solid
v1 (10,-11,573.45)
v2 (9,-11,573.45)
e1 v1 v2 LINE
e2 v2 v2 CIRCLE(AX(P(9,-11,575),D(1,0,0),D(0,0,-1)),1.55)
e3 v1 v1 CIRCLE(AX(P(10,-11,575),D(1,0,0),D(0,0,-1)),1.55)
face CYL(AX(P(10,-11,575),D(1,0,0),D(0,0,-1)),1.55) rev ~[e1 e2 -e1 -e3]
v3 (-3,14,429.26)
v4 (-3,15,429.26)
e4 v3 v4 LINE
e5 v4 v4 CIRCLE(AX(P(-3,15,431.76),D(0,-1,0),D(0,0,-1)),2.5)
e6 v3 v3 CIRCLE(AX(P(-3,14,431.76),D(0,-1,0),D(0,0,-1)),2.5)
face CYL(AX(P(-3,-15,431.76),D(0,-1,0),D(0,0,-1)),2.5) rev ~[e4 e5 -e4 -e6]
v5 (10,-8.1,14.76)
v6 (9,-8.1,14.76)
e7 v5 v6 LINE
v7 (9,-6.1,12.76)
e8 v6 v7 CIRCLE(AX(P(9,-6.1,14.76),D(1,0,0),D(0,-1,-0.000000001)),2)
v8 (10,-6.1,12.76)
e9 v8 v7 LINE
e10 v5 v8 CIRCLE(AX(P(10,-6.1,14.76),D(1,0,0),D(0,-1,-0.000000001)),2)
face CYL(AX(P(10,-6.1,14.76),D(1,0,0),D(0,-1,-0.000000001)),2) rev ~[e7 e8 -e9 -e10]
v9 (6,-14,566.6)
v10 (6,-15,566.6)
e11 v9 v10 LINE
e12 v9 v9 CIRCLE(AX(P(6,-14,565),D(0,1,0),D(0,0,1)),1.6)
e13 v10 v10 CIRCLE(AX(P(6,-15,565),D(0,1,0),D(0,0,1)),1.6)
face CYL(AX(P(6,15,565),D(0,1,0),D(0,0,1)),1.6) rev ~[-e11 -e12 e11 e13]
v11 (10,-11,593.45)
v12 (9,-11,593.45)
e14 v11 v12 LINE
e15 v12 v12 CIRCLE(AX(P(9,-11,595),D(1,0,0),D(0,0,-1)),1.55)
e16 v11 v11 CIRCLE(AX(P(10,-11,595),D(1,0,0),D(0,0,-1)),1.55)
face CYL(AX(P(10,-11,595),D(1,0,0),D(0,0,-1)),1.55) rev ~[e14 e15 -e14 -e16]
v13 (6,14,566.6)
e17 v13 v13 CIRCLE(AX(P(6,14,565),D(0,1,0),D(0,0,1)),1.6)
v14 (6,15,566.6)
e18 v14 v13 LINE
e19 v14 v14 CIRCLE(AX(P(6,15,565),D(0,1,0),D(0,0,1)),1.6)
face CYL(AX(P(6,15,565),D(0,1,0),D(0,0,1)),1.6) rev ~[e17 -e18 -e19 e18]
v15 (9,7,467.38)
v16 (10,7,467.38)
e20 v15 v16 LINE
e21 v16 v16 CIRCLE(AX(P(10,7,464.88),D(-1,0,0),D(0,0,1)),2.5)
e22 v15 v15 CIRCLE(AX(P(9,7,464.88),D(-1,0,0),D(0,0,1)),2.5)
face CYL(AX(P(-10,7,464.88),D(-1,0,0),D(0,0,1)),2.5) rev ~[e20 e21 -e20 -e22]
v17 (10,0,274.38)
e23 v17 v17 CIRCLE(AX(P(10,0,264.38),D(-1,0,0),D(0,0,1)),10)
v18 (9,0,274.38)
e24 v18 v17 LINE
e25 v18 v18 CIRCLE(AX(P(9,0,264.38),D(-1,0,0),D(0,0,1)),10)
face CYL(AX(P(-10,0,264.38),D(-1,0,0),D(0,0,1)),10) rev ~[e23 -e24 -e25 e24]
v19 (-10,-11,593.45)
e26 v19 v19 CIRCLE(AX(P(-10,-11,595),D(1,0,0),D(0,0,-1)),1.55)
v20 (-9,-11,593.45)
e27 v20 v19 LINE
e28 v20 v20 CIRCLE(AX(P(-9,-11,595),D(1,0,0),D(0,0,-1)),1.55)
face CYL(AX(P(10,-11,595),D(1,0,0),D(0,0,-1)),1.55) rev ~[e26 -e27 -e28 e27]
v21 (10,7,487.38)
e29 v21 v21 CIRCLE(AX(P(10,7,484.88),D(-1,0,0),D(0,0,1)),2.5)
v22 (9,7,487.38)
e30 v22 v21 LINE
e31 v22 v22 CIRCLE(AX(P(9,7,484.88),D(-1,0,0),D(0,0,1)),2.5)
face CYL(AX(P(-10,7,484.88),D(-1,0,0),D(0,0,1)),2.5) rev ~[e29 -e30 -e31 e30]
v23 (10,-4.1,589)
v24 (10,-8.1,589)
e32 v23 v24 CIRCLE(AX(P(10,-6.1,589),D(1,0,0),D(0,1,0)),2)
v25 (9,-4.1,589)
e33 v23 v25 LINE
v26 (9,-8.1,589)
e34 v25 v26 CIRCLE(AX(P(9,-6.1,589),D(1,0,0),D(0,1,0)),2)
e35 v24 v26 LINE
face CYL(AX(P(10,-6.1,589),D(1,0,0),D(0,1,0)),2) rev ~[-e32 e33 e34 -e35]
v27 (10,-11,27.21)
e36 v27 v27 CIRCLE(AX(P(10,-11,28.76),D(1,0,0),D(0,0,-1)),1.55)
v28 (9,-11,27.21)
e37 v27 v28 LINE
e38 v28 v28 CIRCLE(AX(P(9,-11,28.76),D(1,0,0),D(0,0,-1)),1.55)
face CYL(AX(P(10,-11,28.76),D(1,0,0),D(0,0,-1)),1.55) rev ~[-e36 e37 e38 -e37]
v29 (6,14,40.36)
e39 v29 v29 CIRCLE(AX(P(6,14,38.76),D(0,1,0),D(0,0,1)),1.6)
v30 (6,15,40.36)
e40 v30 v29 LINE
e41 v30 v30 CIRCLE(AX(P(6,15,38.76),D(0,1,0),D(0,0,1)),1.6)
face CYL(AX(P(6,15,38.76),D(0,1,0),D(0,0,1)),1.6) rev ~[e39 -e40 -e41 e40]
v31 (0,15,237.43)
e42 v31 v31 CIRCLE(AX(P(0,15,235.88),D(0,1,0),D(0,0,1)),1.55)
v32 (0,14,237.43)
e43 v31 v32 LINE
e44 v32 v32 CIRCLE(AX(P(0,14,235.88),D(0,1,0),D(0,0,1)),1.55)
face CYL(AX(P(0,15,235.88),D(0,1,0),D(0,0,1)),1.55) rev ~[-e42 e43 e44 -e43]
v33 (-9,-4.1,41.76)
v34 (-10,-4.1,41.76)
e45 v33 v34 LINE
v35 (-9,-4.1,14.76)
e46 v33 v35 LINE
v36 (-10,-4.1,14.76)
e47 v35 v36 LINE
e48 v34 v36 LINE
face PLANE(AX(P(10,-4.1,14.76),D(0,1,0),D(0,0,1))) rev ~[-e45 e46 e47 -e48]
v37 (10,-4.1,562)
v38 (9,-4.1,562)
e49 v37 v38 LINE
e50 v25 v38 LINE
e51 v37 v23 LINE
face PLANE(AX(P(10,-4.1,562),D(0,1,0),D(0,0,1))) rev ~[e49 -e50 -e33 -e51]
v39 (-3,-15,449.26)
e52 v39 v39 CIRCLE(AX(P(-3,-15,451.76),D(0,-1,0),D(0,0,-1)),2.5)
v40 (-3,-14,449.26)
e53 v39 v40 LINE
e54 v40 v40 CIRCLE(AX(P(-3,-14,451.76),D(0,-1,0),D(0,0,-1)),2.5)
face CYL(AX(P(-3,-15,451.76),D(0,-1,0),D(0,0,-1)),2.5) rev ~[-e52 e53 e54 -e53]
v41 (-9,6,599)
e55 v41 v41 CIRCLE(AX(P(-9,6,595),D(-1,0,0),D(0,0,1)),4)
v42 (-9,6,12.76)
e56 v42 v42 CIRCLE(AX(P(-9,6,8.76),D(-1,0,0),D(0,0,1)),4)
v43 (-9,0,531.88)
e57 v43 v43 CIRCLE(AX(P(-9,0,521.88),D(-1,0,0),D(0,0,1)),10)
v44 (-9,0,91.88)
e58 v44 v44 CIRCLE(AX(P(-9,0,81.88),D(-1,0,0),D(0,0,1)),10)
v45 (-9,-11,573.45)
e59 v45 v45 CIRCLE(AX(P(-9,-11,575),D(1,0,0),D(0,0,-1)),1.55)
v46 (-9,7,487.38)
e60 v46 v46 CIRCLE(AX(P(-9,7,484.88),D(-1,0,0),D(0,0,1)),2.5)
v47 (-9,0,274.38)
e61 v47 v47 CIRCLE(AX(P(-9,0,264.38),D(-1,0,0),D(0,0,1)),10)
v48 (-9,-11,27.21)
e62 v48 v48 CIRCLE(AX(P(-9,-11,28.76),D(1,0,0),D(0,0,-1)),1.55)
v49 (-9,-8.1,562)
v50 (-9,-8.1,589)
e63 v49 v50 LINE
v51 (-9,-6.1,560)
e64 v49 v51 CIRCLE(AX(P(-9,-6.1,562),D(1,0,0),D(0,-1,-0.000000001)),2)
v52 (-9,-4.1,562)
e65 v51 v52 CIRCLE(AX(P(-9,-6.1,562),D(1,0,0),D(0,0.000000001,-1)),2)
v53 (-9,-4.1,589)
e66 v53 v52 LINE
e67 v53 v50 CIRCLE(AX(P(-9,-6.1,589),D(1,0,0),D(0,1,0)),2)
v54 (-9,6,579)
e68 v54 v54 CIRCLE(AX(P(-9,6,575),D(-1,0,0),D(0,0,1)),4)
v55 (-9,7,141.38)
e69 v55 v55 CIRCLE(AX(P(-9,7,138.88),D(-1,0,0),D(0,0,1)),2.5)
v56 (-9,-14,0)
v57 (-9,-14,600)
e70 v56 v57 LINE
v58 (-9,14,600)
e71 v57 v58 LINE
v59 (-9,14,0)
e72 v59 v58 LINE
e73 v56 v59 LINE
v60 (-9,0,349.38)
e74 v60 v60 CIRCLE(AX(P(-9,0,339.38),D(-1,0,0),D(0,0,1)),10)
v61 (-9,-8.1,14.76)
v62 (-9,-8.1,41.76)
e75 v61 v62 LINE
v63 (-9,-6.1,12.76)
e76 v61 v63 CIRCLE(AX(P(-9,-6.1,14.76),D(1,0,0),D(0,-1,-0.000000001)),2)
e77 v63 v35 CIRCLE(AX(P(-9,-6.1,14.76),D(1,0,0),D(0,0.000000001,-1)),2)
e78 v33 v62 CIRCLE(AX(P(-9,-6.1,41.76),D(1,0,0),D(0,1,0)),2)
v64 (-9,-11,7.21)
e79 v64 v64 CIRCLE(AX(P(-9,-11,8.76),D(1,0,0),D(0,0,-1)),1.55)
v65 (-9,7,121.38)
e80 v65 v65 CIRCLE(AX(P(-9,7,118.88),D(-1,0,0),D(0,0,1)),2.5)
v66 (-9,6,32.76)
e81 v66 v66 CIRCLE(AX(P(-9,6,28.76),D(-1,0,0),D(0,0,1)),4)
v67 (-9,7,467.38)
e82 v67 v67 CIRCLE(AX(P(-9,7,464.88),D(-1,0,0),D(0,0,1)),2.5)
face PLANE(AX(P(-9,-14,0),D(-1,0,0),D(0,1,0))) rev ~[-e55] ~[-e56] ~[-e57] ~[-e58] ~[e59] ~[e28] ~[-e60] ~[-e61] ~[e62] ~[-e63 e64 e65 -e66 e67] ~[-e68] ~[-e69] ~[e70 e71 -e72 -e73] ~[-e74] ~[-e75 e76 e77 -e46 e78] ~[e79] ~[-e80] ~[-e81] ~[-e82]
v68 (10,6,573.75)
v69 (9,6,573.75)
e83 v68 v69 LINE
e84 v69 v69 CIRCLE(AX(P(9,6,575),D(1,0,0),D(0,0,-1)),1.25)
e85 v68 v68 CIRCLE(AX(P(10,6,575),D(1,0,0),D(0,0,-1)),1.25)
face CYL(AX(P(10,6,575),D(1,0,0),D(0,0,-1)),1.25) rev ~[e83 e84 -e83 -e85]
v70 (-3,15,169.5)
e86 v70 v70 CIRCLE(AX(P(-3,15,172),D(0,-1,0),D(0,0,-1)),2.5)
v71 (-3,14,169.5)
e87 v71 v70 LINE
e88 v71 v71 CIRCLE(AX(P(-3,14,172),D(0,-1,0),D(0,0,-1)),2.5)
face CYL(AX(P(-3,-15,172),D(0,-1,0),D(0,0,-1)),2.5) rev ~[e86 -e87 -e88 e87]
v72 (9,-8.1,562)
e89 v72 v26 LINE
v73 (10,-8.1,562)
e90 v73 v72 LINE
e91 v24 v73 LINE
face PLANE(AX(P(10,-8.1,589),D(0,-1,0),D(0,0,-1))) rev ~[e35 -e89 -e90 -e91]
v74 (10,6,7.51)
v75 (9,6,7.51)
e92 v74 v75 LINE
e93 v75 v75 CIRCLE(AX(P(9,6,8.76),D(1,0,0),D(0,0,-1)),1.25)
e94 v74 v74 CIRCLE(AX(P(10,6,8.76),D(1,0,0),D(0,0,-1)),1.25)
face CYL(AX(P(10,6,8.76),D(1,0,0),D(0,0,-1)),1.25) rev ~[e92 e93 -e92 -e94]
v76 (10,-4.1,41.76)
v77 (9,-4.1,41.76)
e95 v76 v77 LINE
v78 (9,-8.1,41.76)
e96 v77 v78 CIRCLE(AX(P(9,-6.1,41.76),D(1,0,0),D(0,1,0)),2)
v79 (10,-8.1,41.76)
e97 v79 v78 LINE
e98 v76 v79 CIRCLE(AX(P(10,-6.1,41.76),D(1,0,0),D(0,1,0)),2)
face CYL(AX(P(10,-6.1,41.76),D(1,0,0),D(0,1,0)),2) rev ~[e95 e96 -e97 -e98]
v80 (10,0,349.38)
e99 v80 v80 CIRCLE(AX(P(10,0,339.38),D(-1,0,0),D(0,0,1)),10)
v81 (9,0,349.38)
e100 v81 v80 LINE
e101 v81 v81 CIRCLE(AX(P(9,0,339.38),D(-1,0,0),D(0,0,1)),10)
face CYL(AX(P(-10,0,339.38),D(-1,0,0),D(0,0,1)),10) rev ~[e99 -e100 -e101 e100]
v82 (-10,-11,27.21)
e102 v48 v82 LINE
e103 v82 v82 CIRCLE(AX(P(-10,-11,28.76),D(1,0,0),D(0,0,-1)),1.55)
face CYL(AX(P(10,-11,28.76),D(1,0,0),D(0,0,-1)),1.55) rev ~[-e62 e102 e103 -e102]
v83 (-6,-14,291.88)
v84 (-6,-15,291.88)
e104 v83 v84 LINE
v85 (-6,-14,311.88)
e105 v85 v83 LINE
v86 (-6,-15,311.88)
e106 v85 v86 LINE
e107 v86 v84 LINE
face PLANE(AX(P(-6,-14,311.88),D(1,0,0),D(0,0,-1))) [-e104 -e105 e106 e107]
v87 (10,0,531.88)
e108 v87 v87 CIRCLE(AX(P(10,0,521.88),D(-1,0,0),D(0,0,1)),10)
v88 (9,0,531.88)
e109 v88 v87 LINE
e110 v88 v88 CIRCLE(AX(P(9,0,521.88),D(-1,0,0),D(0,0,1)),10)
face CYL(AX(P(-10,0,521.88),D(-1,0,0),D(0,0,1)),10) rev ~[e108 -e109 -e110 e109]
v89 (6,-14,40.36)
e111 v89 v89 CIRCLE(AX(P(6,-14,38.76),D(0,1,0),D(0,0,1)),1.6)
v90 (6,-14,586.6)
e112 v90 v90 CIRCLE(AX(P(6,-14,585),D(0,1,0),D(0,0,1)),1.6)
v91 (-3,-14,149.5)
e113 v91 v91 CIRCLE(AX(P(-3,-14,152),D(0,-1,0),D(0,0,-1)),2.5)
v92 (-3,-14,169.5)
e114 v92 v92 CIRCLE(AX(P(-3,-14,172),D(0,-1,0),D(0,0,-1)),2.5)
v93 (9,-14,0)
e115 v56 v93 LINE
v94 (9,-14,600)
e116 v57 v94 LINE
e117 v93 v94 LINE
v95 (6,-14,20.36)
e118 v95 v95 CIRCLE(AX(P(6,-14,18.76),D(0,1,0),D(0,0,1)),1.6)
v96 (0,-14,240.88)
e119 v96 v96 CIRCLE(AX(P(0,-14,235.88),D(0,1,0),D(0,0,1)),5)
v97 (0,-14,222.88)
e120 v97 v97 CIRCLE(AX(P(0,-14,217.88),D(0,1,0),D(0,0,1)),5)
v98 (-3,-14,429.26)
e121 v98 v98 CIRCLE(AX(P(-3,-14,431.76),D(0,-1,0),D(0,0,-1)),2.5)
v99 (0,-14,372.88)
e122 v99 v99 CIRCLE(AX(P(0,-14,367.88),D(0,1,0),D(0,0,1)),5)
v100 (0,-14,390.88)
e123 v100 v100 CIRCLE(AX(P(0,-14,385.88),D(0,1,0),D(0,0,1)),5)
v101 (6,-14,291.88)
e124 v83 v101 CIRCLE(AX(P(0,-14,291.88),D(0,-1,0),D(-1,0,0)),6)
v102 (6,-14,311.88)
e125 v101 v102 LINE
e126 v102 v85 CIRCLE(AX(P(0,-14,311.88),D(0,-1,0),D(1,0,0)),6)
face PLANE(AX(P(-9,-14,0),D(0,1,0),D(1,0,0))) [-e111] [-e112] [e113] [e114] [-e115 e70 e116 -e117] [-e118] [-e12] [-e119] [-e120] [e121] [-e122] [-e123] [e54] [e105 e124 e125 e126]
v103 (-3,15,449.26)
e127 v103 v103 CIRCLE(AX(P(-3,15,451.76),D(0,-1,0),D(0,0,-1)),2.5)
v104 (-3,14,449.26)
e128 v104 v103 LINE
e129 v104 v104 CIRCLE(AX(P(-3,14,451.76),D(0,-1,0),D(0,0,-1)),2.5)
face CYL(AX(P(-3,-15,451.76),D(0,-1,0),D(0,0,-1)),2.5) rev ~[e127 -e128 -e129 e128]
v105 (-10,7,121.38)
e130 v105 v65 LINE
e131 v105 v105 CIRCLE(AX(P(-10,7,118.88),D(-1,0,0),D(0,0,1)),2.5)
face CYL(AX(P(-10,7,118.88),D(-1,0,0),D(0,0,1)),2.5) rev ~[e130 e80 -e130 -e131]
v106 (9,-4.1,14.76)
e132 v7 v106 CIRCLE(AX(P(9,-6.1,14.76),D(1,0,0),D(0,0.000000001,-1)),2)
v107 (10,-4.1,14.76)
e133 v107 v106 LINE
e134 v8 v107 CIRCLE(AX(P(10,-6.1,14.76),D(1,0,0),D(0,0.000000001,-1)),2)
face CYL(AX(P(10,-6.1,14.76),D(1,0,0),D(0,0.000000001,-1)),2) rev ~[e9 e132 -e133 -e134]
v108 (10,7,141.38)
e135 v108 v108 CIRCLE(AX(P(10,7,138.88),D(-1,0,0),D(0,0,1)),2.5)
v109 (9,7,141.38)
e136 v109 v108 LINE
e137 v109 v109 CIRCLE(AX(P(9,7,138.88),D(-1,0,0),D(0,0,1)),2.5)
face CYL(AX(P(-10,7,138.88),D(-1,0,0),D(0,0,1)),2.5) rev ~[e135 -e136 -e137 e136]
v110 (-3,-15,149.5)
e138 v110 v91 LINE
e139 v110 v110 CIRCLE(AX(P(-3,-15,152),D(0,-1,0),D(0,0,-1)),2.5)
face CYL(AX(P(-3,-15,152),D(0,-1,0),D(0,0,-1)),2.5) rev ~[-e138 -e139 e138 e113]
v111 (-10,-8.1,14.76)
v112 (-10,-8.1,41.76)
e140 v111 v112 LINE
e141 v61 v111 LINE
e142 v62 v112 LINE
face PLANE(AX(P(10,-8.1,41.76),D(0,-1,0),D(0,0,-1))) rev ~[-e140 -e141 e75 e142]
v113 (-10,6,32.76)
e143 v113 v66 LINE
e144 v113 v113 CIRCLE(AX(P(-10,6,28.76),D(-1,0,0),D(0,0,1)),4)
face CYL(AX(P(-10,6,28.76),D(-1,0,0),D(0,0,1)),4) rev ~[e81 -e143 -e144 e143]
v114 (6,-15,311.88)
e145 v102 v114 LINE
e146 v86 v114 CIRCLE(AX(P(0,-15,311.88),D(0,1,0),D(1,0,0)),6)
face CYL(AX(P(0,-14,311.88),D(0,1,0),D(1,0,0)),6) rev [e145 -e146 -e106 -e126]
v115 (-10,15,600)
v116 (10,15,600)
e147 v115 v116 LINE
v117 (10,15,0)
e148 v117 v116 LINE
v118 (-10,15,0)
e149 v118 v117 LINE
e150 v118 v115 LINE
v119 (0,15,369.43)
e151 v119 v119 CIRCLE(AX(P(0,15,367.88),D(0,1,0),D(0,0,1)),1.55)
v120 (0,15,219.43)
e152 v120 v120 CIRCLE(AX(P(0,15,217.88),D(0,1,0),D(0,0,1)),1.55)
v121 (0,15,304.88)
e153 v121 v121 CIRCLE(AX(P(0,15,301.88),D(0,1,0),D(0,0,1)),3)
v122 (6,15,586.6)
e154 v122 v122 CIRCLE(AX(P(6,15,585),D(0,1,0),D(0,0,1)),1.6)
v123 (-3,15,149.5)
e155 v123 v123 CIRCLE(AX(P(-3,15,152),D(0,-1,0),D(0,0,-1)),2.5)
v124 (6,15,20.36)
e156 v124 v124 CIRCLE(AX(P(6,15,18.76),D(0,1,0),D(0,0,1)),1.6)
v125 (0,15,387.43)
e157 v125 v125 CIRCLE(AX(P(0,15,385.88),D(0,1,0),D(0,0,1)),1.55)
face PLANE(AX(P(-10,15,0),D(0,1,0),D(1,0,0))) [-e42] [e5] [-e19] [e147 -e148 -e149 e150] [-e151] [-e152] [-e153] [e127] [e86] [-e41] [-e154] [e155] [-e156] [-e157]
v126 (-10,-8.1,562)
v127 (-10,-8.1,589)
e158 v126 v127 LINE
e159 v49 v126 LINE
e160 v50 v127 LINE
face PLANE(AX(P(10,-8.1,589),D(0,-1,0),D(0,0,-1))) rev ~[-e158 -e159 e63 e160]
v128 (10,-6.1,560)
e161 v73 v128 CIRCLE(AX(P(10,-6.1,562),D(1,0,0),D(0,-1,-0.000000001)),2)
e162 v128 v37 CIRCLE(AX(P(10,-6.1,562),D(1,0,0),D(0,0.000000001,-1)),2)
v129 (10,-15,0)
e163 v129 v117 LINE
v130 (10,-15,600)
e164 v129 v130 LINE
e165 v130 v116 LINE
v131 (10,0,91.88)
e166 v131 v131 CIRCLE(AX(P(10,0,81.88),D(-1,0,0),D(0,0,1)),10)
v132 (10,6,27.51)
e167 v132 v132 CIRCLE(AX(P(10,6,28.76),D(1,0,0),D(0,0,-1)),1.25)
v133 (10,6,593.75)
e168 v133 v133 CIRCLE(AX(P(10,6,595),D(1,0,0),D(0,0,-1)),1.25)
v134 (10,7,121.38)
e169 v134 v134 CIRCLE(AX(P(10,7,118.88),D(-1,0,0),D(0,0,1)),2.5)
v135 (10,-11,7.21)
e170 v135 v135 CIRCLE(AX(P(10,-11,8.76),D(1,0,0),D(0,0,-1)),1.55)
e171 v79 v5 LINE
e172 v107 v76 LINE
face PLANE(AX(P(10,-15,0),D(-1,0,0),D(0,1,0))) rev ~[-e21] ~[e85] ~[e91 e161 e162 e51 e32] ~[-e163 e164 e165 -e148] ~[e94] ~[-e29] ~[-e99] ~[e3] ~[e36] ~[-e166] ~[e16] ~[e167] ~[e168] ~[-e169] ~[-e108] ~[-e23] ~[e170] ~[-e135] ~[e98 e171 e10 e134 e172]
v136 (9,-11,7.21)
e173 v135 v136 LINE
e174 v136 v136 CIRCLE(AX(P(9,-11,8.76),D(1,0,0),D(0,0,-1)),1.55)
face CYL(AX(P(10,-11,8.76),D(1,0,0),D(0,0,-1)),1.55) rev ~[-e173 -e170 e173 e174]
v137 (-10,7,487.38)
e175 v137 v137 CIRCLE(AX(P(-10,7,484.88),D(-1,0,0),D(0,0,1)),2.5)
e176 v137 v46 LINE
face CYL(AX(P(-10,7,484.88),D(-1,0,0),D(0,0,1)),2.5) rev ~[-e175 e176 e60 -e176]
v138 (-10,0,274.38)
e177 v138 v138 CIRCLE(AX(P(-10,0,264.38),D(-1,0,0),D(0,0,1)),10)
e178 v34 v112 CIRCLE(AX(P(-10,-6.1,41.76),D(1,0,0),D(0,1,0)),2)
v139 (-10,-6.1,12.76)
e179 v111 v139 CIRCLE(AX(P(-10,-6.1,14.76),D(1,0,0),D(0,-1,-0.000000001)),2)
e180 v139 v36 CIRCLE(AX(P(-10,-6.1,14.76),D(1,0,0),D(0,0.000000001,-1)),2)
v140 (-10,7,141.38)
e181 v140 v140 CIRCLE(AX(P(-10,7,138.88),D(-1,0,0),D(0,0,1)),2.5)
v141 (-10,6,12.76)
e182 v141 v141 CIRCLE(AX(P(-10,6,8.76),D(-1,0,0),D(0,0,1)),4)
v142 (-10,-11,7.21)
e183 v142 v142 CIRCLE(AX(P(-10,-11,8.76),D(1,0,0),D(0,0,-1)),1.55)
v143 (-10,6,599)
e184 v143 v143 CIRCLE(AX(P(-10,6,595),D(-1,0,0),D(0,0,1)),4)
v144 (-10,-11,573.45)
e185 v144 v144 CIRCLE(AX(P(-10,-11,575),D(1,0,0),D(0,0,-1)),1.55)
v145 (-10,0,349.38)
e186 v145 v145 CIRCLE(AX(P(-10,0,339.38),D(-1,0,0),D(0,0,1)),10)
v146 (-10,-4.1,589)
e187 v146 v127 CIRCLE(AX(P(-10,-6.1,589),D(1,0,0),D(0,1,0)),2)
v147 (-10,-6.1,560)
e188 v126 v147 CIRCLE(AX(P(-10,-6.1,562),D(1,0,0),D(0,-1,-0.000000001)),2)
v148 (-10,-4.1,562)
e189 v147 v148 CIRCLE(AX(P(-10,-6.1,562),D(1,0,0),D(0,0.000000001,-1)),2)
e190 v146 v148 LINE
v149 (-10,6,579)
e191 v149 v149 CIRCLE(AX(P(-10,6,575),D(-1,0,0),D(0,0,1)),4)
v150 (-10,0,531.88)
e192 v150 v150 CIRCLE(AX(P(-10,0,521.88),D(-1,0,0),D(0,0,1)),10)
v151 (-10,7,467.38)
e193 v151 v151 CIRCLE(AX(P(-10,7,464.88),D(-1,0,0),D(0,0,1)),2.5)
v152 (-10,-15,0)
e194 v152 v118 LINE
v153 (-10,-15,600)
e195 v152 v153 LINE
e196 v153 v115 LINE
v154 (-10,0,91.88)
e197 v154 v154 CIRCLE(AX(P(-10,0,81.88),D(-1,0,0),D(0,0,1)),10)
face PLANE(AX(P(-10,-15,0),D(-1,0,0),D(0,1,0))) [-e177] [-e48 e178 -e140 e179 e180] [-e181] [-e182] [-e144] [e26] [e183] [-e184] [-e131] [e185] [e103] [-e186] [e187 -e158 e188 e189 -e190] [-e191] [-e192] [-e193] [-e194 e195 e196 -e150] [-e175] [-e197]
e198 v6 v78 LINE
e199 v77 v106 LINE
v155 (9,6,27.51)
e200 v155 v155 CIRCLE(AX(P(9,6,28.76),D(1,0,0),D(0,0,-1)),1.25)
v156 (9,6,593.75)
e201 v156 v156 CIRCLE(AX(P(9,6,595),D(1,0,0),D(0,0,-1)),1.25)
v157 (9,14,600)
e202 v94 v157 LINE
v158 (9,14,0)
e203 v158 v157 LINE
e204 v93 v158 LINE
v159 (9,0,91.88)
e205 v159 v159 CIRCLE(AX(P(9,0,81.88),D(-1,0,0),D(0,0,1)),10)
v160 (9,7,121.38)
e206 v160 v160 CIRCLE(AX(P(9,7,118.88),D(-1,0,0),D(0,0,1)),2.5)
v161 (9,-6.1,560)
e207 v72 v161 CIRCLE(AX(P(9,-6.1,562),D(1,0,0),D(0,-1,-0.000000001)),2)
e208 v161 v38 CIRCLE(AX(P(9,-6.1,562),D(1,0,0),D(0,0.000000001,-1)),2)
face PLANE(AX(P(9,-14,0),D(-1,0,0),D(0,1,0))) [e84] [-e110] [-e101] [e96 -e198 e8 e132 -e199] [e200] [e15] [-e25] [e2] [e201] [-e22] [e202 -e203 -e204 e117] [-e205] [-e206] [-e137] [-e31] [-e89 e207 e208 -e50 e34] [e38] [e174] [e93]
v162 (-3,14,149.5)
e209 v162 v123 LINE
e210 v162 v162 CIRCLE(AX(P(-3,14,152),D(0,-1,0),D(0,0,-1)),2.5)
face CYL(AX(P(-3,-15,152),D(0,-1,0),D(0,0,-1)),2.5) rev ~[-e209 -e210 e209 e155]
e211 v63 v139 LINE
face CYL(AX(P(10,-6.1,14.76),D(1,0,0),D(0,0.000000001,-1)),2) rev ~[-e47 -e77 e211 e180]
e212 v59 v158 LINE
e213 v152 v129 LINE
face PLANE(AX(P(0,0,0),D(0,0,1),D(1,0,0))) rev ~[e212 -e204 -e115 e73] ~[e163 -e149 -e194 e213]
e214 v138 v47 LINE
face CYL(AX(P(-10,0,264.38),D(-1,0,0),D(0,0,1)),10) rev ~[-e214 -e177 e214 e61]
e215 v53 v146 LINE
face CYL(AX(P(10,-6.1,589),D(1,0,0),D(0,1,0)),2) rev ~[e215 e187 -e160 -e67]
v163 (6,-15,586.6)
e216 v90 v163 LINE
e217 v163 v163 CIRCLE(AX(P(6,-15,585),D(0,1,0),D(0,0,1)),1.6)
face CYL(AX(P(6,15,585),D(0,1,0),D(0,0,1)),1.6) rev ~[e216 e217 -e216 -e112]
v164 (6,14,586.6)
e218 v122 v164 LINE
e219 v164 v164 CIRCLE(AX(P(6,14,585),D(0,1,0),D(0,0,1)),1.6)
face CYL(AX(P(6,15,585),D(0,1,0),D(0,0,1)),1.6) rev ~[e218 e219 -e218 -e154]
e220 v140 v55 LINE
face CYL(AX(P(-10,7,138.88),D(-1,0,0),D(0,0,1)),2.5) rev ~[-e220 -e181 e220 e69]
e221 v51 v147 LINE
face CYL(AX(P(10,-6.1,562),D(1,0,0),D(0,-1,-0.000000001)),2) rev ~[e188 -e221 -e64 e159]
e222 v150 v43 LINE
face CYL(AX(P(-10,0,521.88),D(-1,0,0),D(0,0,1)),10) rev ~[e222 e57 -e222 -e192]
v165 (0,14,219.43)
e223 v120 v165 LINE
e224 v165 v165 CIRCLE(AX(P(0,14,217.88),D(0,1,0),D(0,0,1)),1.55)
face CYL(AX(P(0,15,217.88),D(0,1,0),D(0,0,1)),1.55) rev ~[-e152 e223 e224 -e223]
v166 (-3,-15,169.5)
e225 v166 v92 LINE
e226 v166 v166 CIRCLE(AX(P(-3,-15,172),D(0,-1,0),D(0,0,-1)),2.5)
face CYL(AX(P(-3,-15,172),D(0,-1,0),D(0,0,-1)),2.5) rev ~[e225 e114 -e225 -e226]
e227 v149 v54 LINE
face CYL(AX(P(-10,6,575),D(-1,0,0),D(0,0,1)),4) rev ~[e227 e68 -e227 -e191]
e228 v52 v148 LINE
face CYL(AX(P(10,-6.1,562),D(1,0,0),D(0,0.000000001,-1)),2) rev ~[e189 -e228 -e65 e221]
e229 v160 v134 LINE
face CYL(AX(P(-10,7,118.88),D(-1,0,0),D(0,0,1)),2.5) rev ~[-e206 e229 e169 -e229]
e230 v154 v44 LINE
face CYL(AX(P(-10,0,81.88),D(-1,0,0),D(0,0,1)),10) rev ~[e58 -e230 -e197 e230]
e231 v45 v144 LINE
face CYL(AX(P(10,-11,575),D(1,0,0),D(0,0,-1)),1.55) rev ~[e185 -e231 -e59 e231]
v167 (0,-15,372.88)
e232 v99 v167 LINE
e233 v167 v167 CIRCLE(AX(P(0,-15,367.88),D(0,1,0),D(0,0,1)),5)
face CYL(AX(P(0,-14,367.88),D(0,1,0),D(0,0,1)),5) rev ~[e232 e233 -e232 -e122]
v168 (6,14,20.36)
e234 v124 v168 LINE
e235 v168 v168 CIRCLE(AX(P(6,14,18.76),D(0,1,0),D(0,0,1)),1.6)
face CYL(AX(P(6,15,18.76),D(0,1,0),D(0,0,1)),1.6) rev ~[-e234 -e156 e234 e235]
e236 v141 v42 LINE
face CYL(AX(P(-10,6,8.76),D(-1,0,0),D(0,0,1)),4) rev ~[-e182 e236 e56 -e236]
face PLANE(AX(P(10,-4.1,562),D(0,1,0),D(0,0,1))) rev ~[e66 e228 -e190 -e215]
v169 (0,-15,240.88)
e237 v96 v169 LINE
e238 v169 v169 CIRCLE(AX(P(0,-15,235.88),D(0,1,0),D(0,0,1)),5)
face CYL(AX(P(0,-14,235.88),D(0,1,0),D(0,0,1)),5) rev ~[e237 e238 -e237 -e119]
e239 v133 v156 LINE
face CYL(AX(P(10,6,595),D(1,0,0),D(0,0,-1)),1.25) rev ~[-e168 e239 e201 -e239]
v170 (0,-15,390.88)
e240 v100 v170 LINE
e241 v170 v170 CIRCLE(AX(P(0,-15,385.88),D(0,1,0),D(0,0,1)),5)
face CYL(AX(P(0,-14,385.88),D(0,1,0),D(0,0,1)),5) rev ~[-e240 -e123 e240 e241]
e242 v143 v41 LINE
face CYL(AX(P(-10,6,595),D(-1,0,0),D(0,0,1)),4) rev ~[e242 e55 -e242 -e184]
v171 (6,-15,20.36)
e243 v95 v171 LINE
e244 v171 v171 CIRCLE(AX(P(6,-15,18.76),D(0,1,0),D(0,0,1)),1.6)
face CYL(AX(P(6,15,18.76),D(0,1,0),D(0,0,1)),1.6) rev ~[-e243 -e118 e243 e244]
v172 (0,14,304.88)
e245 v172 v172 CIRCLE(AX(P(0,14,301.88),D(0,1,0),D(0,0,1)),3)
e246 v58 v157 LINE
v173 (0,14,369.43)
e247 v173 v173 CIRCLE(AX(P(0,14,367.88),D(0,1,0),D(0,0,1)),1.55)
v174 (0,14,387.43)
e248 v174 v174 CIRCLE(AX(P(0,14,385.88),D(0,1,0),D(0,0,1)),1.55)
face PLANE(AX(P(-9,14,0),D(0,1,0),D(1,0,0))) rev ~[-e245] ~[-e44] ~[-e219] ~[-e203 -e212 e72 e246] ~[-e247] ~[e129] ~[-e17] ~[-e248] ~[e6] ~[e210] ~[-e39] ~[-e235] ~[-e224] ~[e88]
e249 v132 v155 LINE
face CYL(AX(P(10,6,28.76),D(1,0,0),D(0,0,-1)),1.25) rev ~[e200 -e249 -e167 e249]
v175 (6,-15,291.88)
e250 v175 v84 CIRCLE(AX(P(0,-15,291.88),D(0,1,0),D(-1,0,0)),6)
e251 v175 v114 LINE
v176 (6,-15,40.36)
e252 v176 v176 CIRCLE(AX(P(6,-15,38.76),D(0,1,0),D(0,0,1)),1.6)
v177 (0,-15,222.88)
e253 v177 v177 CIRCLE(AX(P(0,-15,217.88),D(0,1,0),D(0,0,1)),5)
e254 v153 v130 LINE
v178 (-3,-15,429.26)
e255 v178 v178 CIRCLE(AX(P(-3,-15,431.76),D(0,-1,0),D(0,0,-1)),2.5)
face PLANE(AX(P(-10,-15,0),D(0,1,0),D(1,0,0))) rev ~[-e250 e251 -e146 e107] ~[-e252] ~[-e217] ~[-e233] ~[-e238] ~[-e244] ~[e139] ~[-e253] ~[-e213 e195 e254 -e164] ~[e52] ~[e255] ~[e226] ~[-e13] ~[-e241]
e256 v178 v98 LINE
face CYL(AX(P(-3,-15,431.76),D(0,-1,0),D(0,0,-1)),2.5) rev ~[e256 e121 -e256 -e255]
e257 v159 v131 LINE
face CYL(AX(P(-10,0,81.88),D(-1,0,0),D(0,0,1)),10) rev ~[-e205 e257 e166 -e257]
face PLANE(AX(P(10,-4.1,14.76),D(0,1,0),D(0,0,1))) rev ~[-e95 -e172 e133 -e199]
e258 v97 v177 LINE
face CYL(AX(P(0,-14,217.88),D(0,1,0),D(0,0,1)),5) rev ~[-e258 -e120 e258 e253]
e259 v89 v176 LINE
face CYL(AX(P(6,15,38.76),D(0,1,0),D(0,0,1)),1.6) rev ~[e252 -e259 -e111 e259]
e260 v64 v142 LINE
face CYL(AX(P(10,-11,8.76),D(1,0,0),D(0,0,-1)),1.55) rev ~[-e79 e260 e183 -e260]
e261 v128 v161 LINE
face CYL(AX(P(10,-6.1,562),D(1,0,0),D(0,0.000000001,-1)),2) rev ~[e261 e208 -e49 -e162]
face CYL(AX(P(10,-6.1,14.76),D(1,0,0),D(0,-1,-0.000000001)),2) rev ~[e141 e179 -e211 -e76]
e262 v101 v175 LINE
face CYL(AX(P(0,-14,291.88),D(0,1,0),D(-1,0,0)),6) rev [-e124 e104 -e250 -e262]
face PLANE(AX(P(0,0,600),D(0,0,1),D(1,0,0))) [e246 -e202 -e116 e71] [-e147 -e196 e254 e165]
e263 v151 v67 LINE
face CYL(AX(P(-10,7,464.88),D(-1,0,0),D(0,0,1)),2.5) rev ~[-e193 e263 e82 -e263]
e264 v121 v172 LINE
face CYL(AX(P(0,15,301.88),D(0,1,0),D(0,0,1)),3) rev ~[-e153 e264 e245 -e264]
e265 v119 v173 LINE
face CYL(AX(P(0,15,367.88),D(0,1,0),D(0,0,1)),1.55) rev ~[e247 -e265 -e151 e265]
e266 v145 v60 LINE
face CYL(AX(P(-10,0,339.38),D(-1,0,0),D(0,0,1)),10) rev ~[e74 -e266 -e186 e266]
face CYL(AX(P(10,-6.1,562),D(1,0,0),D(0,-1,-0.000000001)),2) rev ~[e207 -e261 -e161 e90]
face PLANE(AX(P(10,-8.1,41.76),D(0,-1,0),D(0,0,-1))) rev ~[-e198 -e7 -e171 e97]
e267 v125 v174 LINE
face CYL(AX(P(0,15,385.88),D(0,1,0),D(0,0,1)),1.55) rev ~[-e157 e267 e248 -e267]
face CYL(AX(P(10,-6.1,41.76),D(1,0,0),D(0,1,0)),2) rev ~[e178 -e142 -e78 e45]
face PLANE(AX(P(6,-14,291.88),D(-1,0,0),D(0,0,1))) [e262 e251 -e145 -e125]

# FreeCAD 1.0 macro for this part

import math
import FreeCAD as App
import Part
import Sketcher
from FreeCAD import Vector
Q = App.Units.Quantity

doc = App.newDocument("Part")
body = doc.addObject("PartDesign::Body", "Body")

# Sketch on XY plane
sketch1 = body.newObject("Sketcher::SketchObject", "Sketch")
sketch1.AttachmentSupport = (doc.getObject("XY_Plane"), [""])
sketch1.MapMode = "FlatFace"
sketch1.addGeometry(Part.LineSegment(Vector(-10, 15, 0), Vector(-10, -15, 0)), False)
sketch1.addGeometry(Part.LineSegment(Vector(-10, -15, 0), Vector(10, -15, 0)), False)
sketch1.addGeometry(Part.LineSegment(Vector(10, -15, 0), Vector(10, 15, 0)), False)
sketch1.addGeometry(Part.LineSegment(Vector(10, 15, 0), Vector(-10, 15, 0)), False)
sketch1.addGeometry(Part.LineSegment(Vector(9, -14, 0), Vector(-9, -14, 0)), False)
sketch1.addGeometry(Part.LineSegment(Vector(-9, -14, 0), Vector(-9, 14, 0)), False)
sketch1.addGeometry(Part.LineSegment(Vector(-9, 14, 0), Vector(9, 14, 0)), False)
sketch1.addGeometry(Part.LineSegment(Vector(9, 14, 0), Vector(9, -14, 0)), False)
sketch1.addConstraint(Sketcher.Constraint("Coincident", 0, 2, 1, 1))
sketch1.addConstraint(Sketcher.Constraint("Coincident", 1, 2, 2, 1))
sketch1.addConstraint(Sketcher.Constraint("Coincident", 2, 2, 3, 1))
sketch1.addConstraint(Sketcher.Constraint("Coincident", 3, 2, 0, 1))
sketch1.addConstraint(Sketcher.Constraint("Coincident", 4, 2, 5, 1))
sketch1.addConstraint(Sketcher.Constraint("Coincident", 5, 2, 6, 1))
sketch1.addConstraint(Sketcher.Constraint("Coincident", 6, 2, 7, 1))
sketch1.addConstraint(Sketcher.Constraint("Coincident", 7, 2, 4, 1))
sketch1.addConstraint(Sketcher.Constraint("Vertical", 0))
sketch1.addConstraint(Sketcher.Constraint("Horizontal", 1))
sketch1.addConstraint(Sketcher.Constraint("Vertical", 2))
sketch1.addConstraint(Sketcher.Constraint("Horizontal", 3))
sketch1.addConstraint(Sketcher.Constraint("Horizontal", 4))
sketch1.addConstraint(Sketcher.Constraint("Vertical", 5))
sketch1.addConstraint(Sketcher.Constraint("Horizontal", 6))
sketch1.addConstraint(Sketcher.Constraint("Vertical", 7))
sketch1.addConstraint(Sketcher.Constraint("Symmetric", 0, 2, 2, 2, -1, 1))
sketch1.addConstraint(Sketcher.Constraint("Symmetric", 4, 2, 6, 2, -1, 1))
sketch1.addConstraint(Sketcher.Constraint("DistanceX", 1, 1, 1, 2, Q("20 mm")))
sketch1.addConstraint(Sketcher.Constraint("DistanceX", 4, 2, 4, 1, Q("18 mm")))
sketch1.addConstraint(Sketcher.Constraint("DistanceY", 0, 2, 0, 1, Q("30 mm")))
sketch1.addConstraint(Sketcher.Constraint("DistanceY", 5, 1, 5, 2, Q("28 mm")))
pad1 = body.newObject("PartDesign::Pad", "Pad")
pad1.Profile = sketch1
pad1.Length = 600

# Sketch on XZ plane
sketch2 = body.newObject("Sketcher::SketchObject", "Sketch001")
sketch2.AttachmentSupport = (doc.getObject("XZ_Plane"), [""])
sketch2.MapMode = "FlatFace"
sketch2.AttachmentOffset = App.Placement(Vector(0, 0, -15), App.Rotation())
sketch2.addGeometry(Part.Circle(Vector(0, 217.9, 0), Vector(0, 0, 1), 1.6), False)
sketch2.addGeometry(Part.Circle(Vector(0, 235.9, 0), Vector(0, 0, 1), 1.6), False)
sketch2.addGeometry(Part.Circle(Vector(0, 367.9, 0), Vector(0, 0, 1), 1.6), False)
sketch2.addGeometry(Part.Circle(Vector(0, 385.9, 0), Vector(0, 0, 1), 1.6), False)
sketch2.addGeometry(Part.Circle(Vector(0, 301.9, 0), Vector(0, 0, 1), 3), False)
sketch2.addConstraint(Sketcher.Constraint("Equal", 0, 1))
sketch2.addConstraint(Sketcher.Constraint("Equal", 1, 2))
sketch2.addConstraint(Sketcher.Constraint("Equal", 2, 3))
sketch2.addConstraint(Sketcher.Constraint("PointOnObject", 0, 3, -2))
sketch2.addConstraint(Sketcher.Constraint("PointOnObject", 1, 3, -2))
sketch2.addConstraint(Sketcher.Constraint("PointOnObject", 2, 3, -2))
sketch2.addConstraint(Sketcher.Constraint("PointOnObject", 3, 3, -2))
sketch2.addConstraint(Sketcher.Constraint("PointOnObject", 4, 3, -2))
sketch2.addConstraint(Sketcher.Constraint("Diameter", 4, Q("6 mm")))
sketch2.addConstraint(Sketcher.Constraint("Diameter", 0, Q("3.1 mm")))
sketch2.addConstraint(Sketcher.Constraint("DistanceY", 0, 3, 1, 3, Q("18 mm")))
sketch2.addConstraint(Sketcher.Constraint("DistanceY", 1, 3, 2, 3, Q("132 mm")))
sketch2.addConstraint(Sketcher.Constraint("DistanceY", 2, 3, 3, 3, Q("18 mm")))
sketch2.addConstraint(Sketcher.Constraint("DistanceY", 1, 3, 4, 3, Q("66 mm")))
sketch2.addConstraint(Sketcher.Constraint("DistanceY", -1, 1, 0, 3, Q("217.88 mm")))
pocket1 = body.newObject("PartDesign::Pocket", "Pocket")
pocket1.Profile = sketch2
pocket1.Length = 5
pocket1.Reversed = True

# Sketch on XZ plane
sketch3 = body.newObject("Sketcher::SketchObject", "Sketch002")
sketch3.AttachmentSupport = (doc.getObject("XZ_Plane"), [""])
sketch3.MapMode = "FlatFace"
sketch3.AttachmentOffset = App.Placement(Vector(0, 0, 14), App.Rotation())
sketch3.addGeometry(Part.Circle(Vector(0, 386, 0), Vector(0, 0, 1), 5), False)
sketch3.addGeometry(Part.Circle(Vector(0, 368, 0), Vector(0, 0, 1), 5), False)
sketch3.addGeometry(Part.Circle(Vector(0, 236, 0), Vector(0, 0, 1), 5), False)
sketch3.addGeometry(Part.Circle(Vector(0, 218, 0), Vector(0, 0, 1), 5), False)
sketch3.addConstraint(Sketcher.Constraint("Equal", 0, 1))
sketch3.addConstraint(Sketcher.Constraint("Equal", 1, 2))
sketch3.addConstraint(Sketcher.Constraint("Equal", 2, 3))
sketch3.addConstraint(Sketcher.Constraint("PointOnObject", 0, 3, -2))
sketch3.addConstraint(Sketcher.Constraint("PointOnObject", 1, 3, -2))
sketch3.addConstraint(Sketcher.Constraint("PointOnObject", 2, 3, -2))
sketch3.addConstraint(Sketcher.Constraint("PointOnObject", 3, 3, -2))
sketch3.addConstraint(Sketcher.Constraint("Diameter", 0, Q("10 mm")))
sketch3.addConstraint(Sketcher.Constraint("DistanceY", 1, 3, 0, 3, Q("18 mm")))
sketch3.addConstraint(Sketcher.Constraint("DistanceY", 2, 3, 1, 3, Q("132 mm")))
sketch3.addConstraint(Sketcher.Constraint("DistanceY", 3, 3, 2, 3, Q("18 mm")))
sketch3.addConstraint(Sketcher.Constraint("DistanceY", -1, 1, 0, 3, Q("385.88 mm")))
pocket2 = body.newObject("PartDesign::Pocket", "Pocket001")
pocket2.Profile = sketch3
pocket2.Length = 10
pocket2.Reversed = True

# Sketch on YZ plane
sketch4 = body.newObject("Sketcher::SketchObject", "Sketch003")
sketch4.AttachmentSupport = (doc.getObject("YZ_Plane"), [""])
sketch4.MapMode = "FlatFace"
sketch4.AttachmentOffset = App.Placement(Vector(0, 0, 10), App.Rotation())
sketch4.addGeometry(Part.LineSegment(Vector(-8.1, 589, 0), Vector(-8.1, 562, 0)), False)
sketch4.addGeometry(Part.ArcOfCircle(Part.Circle(Vector(-6.1, 562, 0), Vector(0, 0, 1), 2), math.radians(-180), math.radians(-90)), False)
sketch4.addGeometry(Part.ArcOfCircle(Part.Circle(Vector(-6.1, 562, 0), Vector(0, 0, 1), 2), math.radians(-90), math.radians(0)), False)
sketch4.addGeometry(Part.LineSegment(Vector(-4.1, 562, 0), Vector(-4.1, 589, 0)), False)
sketch4.addGeometry(Part.ArcOfCircle(Part.Circle(Vector(-6.1, 589, 0), Vector(0, 0, 1), 2), math.radians(0), math.radians(180)), False)
sketch4.addGeometry(Part.Circle(Vector(6, 595, 0), Vector(0, 0, 1), 1.2), False)
sketch4.addGeometry(Part.LineSegment(Vector(-8.1, 41.8, 0), Vector(-8.1, 14.8, 0)), False)
sketch4.addGeometry(Part.ArcOfCircle(Part.Circle(Vector(-6.1, 14.8, 0), Vector(0, 0, 1), 2), math.radians(-180), math.radians(-90)), False)
sketch4.addGeometry(Part.ArcOfCircle(Part.Circle(Vector(-6.1, 14.8, 0), Vector(0, 0, 1), 2), math.radians(-90), math.radians(0)), False)
sketch4.addGeometry(Part.LineSegment(Vector(-4.1, 14.8, 0), Vector(-4.1, 41.8, 0)), False)
sketch4.addGeometry(Part.ArcOfCircle(Part.Circle(Vector(-6.1, 41.8, 0), Vector(0, 0, 1), 2), math.radians(0), math.radians(180)), False)
sketch4.addGeometry(Part.Circle(Vector(6, 575, 0), Vector(0, 0, 1), 1.2), False)
sketch4.addGeometry(Part.Circle(Vector(6, 8.8, 0), Vector(0, 0, 1), 1.2), False)
sketch4.addGeometry(Part.Circle(Vector(6, 28.8, 0), Vector(0, 0, 1), 1.2), False)
sketch4.addConstraint(Sketcher.Constraint("Tangent", 0, 2, 1, 1))
sketch4.addConstraint(Sketcher.Constraint("Tangent", 1, 2, 2, 1))
sketch4.addConstraint(Sketcher.Constraint("Tangent", 2, 2, 3, 1))
sketch4.addConstraint(Sketcher.Constraint("Tangent", 3, 2, 4, 1))
sketch4.addConstraint(Sketcher.Constraint("Tangent", 4, 2, 0, 1))
sketch4.addConstraint(Sketcher.Constraint("Tangent", 6, 2, 7, 1))
sketch4.addConstraint(Sketcher.Constraint("Tangent", 7, 2, 8, 1))
sketch4.addConstraint(Sketcher.Constraint("Tangent", 8, 2, 9, 1))
sketch4.addConstraint(Sketcher.Constraint("Tangent", 9, 2, 10, 1))
sketch4.addConstraint(Sketcher.Constraint("Tangent", 10, 2, 6, 1))
sketch4.addConstraint(Sketcher.Constraint("Vertical", 0))
sketch4.addConstraint(Sketcher.Constraint("Vertical", 3))
sketch4.addConstraint(Sketcher.Constraint("Vertical", 6))
sketch4.addConstraint(Sketcher.Constraint("Vertical", 9))
sketch4.addConstraint(Sketcher.Constraint("Equal", 1, 2))
sketch4.addConstraint(Sketcher.Constraint("Equal", 4, 7))
sketch4.addConstraint(Sketcher.Constraint("Equal", 7, 8))
sketch4.addConstraint(Sketcher.Constraint("Equal", 5, 11))
sketch4.addConstraint(Sketcher.Constraint("Equal", 11, 12))
sketch4.addConstraint(Sketcher.Constraint("Equal", 12, 13))
sketch4.addConstraint(Sketcher.Constraint("Vertical", 4, 3, 7, 3))
sketch4.addConstraint(Sketcher.Constraint("Vertical", 5, 3, 11, 3))
sketch4.addConstraint(Sketcher.Constraint("Vertical", 11, 3, 12, 3))
sketch4.addConstraint(Sketcher.Constraint("Vertical", 12, 3, 13, 3))
sketch4.addConstraint(Sketcher.Constraint("Vertical", 10, 3, 1, 2))
sketch4.addConstraint(Sketcher.Constraint("Vertical", 1, 2, 7, 2))
sketch4.addConstraint(Sketcher.Constraint("Equal", 3, 6))
sketch4.addConstraint(Sketcher.Constraint("Radius", 1, Q("2 mm")))
sketch4.addConstraint(Sketcher.Constraint("Diameter", 5, Q("2.5 mm")))
sketch4.addConstraint(Sketcher.Constraint("DistanceY", 0, 2, 0, 1, Q("27 mm")))
sketch4.addConstraint(Sketcher.Constraint("DistanceY", -1, 1, 1, 3, Q("562 mm")))
sketch4.addConstraint(Sketcher.Constraint("DistanceX", -1, 1, 5, 3, Q("6 mm")))
sketch4.addConstraint(Sketcher.Constraint("DistanceY", -1, 1, 5, 3, Q("595 mm")))
sketch4.addConstraint(Sketcher.Constraint("DistanceY", -1, 1, 11, 3, Q("575 mm")))
sketch4.addConstraint(Sketcher.Constraint("DistanceY", 12, 3, 7, 3, Q("6 mm")))
sketch4.addConstraint(Sketcher.Constraint("DistanceY", 13, 3, 10, 3, Q("13 mm")))
sketch4.addConstraint(Sketcher.Constraint("DistanceX", 1, 3, -1, 1, Q("6.1 mm")))
sketch4.addConstraint(Sketcher.Constraint("DistanceY", -1, 1, 7, 3, Q("14.76 mm")))
pocket3 = body.newObject("PartDesign::Pocket", "Pocket002")
pocket3.Profile = sketch4
pocket3.Length = 25

# Sketch on YZ plane
sketch5 = body.newObject("Sketcher::SketchObject", "Sketch004")
sketch5.AttachmentSupport = (doc.getObject("YZ_Plane"), [""])
sketch5.MapMode = "FlatFace"
sketch5.AttachmentOffset = App.Placement(Vector(0, 0, -10), App.Rotation())
sketch5.addGeometry(Part.Circle(Vector(6, 8.8, 0), Vector(0, 0, 1), 4), False)
sketch5.addGeometry(Part.Circle(Vector(6, 28.8, 0), Vector(0, 0, 1), 4), False)
sketch5.addGeometry(Part.Circle(Vector(6, 575, 0), Vector(0, 0, 1), 4), False)
sketch5.addGeometry(Part.Circle(Vector(6, 595, 0), Vector(0, 0, 1), 4), False)
sketch5.addConstraint(Sketcher.Constraint("Equal", 0, 1))
sketch5.addConstraint(Sketcher.Constraint("Equal", 1, 2))
sketch5.addConstraint(Sketcher.Constraint("Equal", 2, 3))
sketch5.addConstraint(Sketcher.Constraint("Vertical", 0, 3, 1, 3))
sketch5.addConstraint(Sketcher.Constraint("Vertical", 1, 3, 2, 3))
sketch5.addConstraint(Sketcher.Constraint("Vertical", 2, 3, 3, 3))
sketch5.addConstraint(Sketcher.Constraint("Diameter", 0, Q("8 mm")))
sketch5.addConstraint(Sketcher.Constraint("DistanceX", -1, 1, 0, 3, Q("6 mm")))
sketch5.addConstraint(Sketcher.Constraint("DistanceY", -1, 1, 2, 3, Q("575 mm")))
sketch5.addConstraint(Sketcher.Constraint("DistanceY", -1, 1, 3, 3, Q("595 mm")))
sketch5.addConstraint(Sketcher.Constraint("DistanceY", 0, 3, 1, 3, Q("20 mm")))
sketch5.addConstraint(Sketcher.Constraint("DistanceY", -1, 1, 0, 3, Q("8.76 mm")))
pocket4 = body.newObject("PartDesign::Pocket", "Pocket003")
pocket4.Profile = sketch5
pocket4.Length = 3
pocket4.Reversed = True

# Sketch on XZ plane
sketch6 = body.newObject("Sketcher::SketchObject", "Sketch005")
sketch6.AttachmentSupport = (doc.getObject("XZ_Plane"), [""])
sketch6.MapMode = "FlatFace"
sketch6.AttachmentOffset = App.Placement(Vector(0, 0, -15), App.Rotation())
sketch6.addGeometry(Part.Circle(Vector(6, 585, 0), Vector(0, 0, 1), 1.6), False)
sketch6.addGeometry(Part.Circle(Vector(6, 565, 0), Vector(0, 0, 1), 1.6), False)
sketch6.addGeometry(Part.Circle(Vector(6, 38.8, 0), Vector(0, 0, 1), 1.6), False)
sketch6.addGeometry(Part.Circle(Vector(6, 18.8, 0), Vector(0, 0, 1), 1.6), False)
sketch6.addConstraint(Sketcher.Constraint("Equal", 0, 1))
sketch6.addConstraint(Sketcher.Constraint("Equal", 1, 2))
sketch6.addConstraint(Sketcher.Constraint("Equal", 2, 3))
sketch6.addConstraint(Sketcher.Constraint("Vertical", 0, 3, 1, 3))
sketch6.addConstraint(Sketcher.Constraint("Vertical", 1, 3, 2, 3))
sketch6.addConstraint(Sketcher.Constraint("Vertical", 2, 3, 3, 3))
sketch6.addConstraint(Sketcher.Constraint("Diameter", 0, Q("3.2 mm")))
sketch6.addConstraint(Sketcher.Constraint("DistanceX", -1, 1, 0, 3, Q("6 mm")))
sketch6.addConstraint(Sketcher.Constraint("DistanceY", -1, 1, 0, 3, Q("585 mm")))
sketch6.addConstraint(Sketcher.Constraint("DistanceY", -1, 1, 1, 3, Q("565 mm")))
sketch6.addConstraint(Sketcher.Constraint("DistanceY", 3, 3, 2, 3, Q("20 mm")))
sketch6.addConstraint(Sketcher.Constraint("DistanceY", -1, 1, 2, 3, Q("38.76 mm")))
pocket5 = body.newObject("PartDesign::Pocket", "Pocket004")
pocket5.Profile = sketch6
pocket5.Length = 40
pocket5.Reversed = True

# Sketch on XZ plane
sketch7 = body.newObject("Sketcher::SketchObject", "Sketch006")
sketch7.AttachmentSupport = (doc.getObject("XZ_Plane"), [""])
sketch7.MapMode = "FlatFace"
sketch7.AttachmentOffset = App.Placement(Vector(0, 0, 15), App.Rotation())
sketch7.addGeometry(Part.Circle(Vector(-3, 152, 0), Vector(0, 0, 1), 2.5), False)
sketch7.addGeometry(Part.Circle(Vector(-3, 172, 0), Vector(0, 0, 1), 2.5), False)
sketch7.addConstraint(Sketcher.Constraint("Equal", 0, 1))
sketch7.addConstraint(Sketcher.Constraint("Vertical", 0, 3, 1, 3))
sketch7.addConstraint(Sketcher.Constraint("Diameter", 0, Q("5 mm")))
sketch7.addConstraint(Sketcher.Constraint("DistanceX", 0, 3, -1, 1, Q("3 mm")))
sketch7.addConstraint(Sketcher.Constraint("DistanceY", -1, 1, 0, 3, Q("152 mm")))
sketch7.addConstraint(Sketcher.Constraint("DistanceY", -1, 1, 1, 3, Q("172 mm")))
pocket6 = body.newObject("PartDesign::Pocket", "Pocket005")
pocket6.Profile = sketch7
pocket6.Length = 40

# Sketch on XZ plane
sketch8 = body.newObject("Sketcher::SketchObject", "Sketch007")
sketch8.AttachmentSupport = (doc.getObject("XZ_Plane"), [""])
sketch8.MapMode = "FlatFace"
sketch8.AttachmentOffset = App.Placement(Vector(0, 0, 15), App.Rotation())
sketch8.addGeometry(Part.Circle(Vector(-3, 431.8, 0), Vector(0, 0, 1), 2.5), False)
sketch8.addGeometry(Part.Circle(Vector(-3, 451.8, 0), Vector(0, 0, 1), 2.5), False)
sketch8.addConstraint(Sketcher.Constraint("Equal", 0, 1))
sketch8.addConstraint(Sketcher.Constraint("Vertical", 0, 3, 1, 3))
sketch8.addConstraint(Sketcher.Constraint("Diameter", 0, Q("5 mm")))
sketch8.addConstraint(Sketcher.Constraint("DistanceX", 0, 3, -1, 1, Q("3 mm")))
sketch8.addConstraint(Sketcher.Constraint("DistanceY", 0, 3, 1, 3, Q("20 mm")))
sketch8.addConstraint(Sketcher.Constraint("DistanceY", -1, 1, 0, 3, Q("431.76 mm")))
pocket7 = body.newObject("PartDesign::Pocket", "Pocket006")
pocket7.Profile = sketch8
pocket7.Length = 40

# Sketch on XZ plane
sketch9 = body.newObject("Sketcher::SketchObject", "Sketch008")
sketch9.AttachmentSupport = (doc.getObject("XZ_Plane"), [""])
sketch9.MapMode = "FlatFace"
sketch9.AttachmentOffset = App.Placement(Vector(0, 0, 14), App.Rotation())
sketch9.addGeometry(Part.LineSegment(Vector(6, 312, 0), Vector(6, 292, 0)), False)
sketch9.addGeometry(Part.ArcOfCircle(Part.Circle(Vector(0, 292, 0), Vector(0, 0, 1), 6), math.radians(180), math.radians(360)), False)
sketch9.addGeometry(Part.LineSegment(Vector(-6, 292, 0), Vector(-6, 312, 0)), False)
sketch9.addGeometry(Part.ArcOfCircle(Part.Circle(Vector(0, 312, 0), Vector(0, 0, 1), 6), math.radians(0), math.radians(180)), False)
sketch9.addConstraint(Sketcher.Constraint("Tangent", 0, 2, 1, 2))
sketch9.addConstraint(Sketcher.Constraint("Tangent", 1, 1, 2, 1))
sketch9.addConstraint(Sketcher.Constraint("Tangent", 2, 2, 3, 2))
sketch9.addConstraint(Sketcher.Constraint("Tangent", 3, 1, 0, 1))
sketch9.addConstraint(Sketcher.Constraint("Vertical", 0))
sketch9.addConstraint(Sketcher.Constraint("Vertical", 2))
sketch9.addConstraint(Sketcher.Constraint("PointOnObject", 1, 3, -2))
sketch9.addConstraint(Sketcher.Constraint("Radius", 1, Q("6 mm")))
sketch9.addConstraint(Sketcher.Constraint("DistanceY", 0, 2, 0, 1, Q("20 mm")))
sketch9.addConstraint(Sketcher.Constraint("DistanceY", -1, 1, 1, 3, Q("291.88 mm")))
pocket8 = body.newObject("PartDesign::Pocket", "Pocket007")
pocket8.Profile = sketch9
pocket8.Length = 10
pocket8.Reversed = True

# Sketch on YZ plane
sketch10 = body.newObject("Sketcher::SketchObject", "Sketch009")
sketch10.AttachmentSupport = (doc.getObject("YZ_Plane"), [""])
sketch10.MapMode = "FlatFace"
sketch10.AttachmentOffset = App.Placement(Vector(0, 0, -10), App.Rotation())
sketch10.addGeometry(Part.Circle(Vector(7, 464.9, 0), Vector(0, 0, 1), 2.5), False)
sketch10.addGeometry(Part.Circle(Vector(7, 484.9, 0), Vector(0, 0, 1), 2.5), False)
sketch10.addConstraint(Sketcher.Constraint("Equal", 0, 1))
sketch10.addConstraint(Sketcher.Constraint("Vertical", 0, 3, 1, 3))
sketch10.addConstraint(Sketcher.Constraint("Diameter", 0, Q("5 mm")))
sketch10.addConstraint(Sketcher.Constraint("DistanceX", -1, 1, 0, 3, Q("7 mm")))
sketch10.addConstraint(Sketcher.Constraint("DistanceY", 0, 3, 1, 3, Q("20 mm")))
sketch10.addConstraint(Sketcher.Constraint("DistanceY", -1, 1, 0, 3, Q("464.88 mm")))
pocket9 = body.newObject("PartDesign::Pocket", "Pocket008")
pocket9.Profile = sketch10
pocket9.Length = 50
pocket9.Reversed = True

# Sketch on YZ plane
sketch11 = body.newObject("Sketcher::SketchObject", "Sketch010")
sketch11.AttachmentSupport = (doc.getObject("YZ_Plane"), [""])
sketch11.MapMode = "FlatFace"
sketch11.AttachmentOffset = App.Placement(Vector(0, 0, -10), App.Rotation())
sketch11.addGeometry(Part.Circle(Vector(7, 118.9, 0), Vector(0, 0, 1), 2.5), False)
sketch11.addGeometry(Part.Circle(Vector(7, 138.9, 0), Vector(0, 0, 1), 2.5), False)
sketch11.addConstraint(Sketcher.Constraint("Equal", 0, 1))
sketch11.addConstraint(Sketcher.Constraint("Vertical", 0, 3, 1, 3))
sketch11.addConstraint(Sketcher.Constraint("Diameter", 0, Q("5 mm")))
sketch11.addConstraint(Sketcher.Constraint("DistanceX", -1, 1, 0, 3, Q("7 mm")))
sketch11.addConstraint(Sketcher.Constraint("DistanceY", 0, 3, 1, 3, Q("20 mm")))
sketch11.addConstraint(Sketcher.Constraint("DistanceY", -1, 1, 0, 3, Q("118.88 mm")))
pocket10 = body.newObject("PartDesign::Pocket", "Pocket009")
pocket10.Profile = sketch11
pocket10.Length = 50
pocket10.Reversed = True

# Sketch on YZ plane
sketch12 = body.newObject("Sketcher::SketchObject", "Sketch011")
sketch12.AttachmentSupport = (doc.getObject("YZ_Plane"), [""])
sketch12.MapMode = "FlatFace"
sketch12.AttachmentOffset = App.Placement(Vector(0, 0, 10), App.Rotation())
sketch12.addGeometry(Part.Circle(Vector(-11, 28.8, 0), Vector(0, 0, 1), 1.6), False)
sketch12.addGeometry(Part.Circle(Vector(-11, 8.8, 0), Vector(0, 0, 1), 1.6), False)
sketch12.addConstraint(Sketcher.Constraint("Equal", 0, 1))
sketch12.addConstraint(Sketcher.Constraint("Vertical", 0, 3, 1, 3))
sketch12.addConstraint(Sketcher.Constraint("Diameter", 0, Q("3.1 mm")))
sketch12.addConstraint(Sketcher.Constraint("DistanceX", 0, 3, -1, 1, Q("11 mm")))
sketch12.addConstraint(Sketcher.Constraint("DistanceY", 1, 3, 0, 3, Q("20 mm")))
sketch12.addConstraint(Sketcher.Constraint("DistanceY", -1, 1, 0, 3, Q("28.76 mm")))
pocket11 = body.newObject("PartDesign::Pocket", "Pocket010")
pocket11.Profile = sketch12
pocket11.Length = 40

# Sketch on YZ plane
sketch13 = body.newObject("Sketcher::SketchObject", "Sketch012")
sketch13.AttachmentSupport = (doc.getObject("YZ_Plane"), [""])
sketch13.MapMode = "FlatFace"
sketch13.AttachmentOffset = App.Placement(Vector(0, 0, 10), App.Rotation())
sketch13.addGeometry(Part.Circle(Vector(-11, 575, 0), Vector(0, 0, 1), 1.6), False)
sketch13.addGeometry(Part.Circle(Vector(-11, 595, 0), Vector(0, 0, 1), 1.6), False)
sketch13.addConstraint(Sketcher.Constraint("Equal", 0, 1))
sketch13.addConstraint(Sketcher.Constraint("Vertical", 0, 3, 1, 3))
sketch13.addConstraint(Sketcher.Constraint("Diameter", 0, Q("3.1 mm")))
sketch13.addConstraint(Sketcher.Constraint("DistanceX", 0, 3, -1, 1, Q("11 mm")))
sketch13.addConstraint(Sketcher.Constraint("DistanceY", -1, 1, 0, 3, Q("575 mm")))
sketch13.addConstraint(Sketcher.Constraint("DistanceY", -1, 1, 1, 3, Q("595 mm")))
pocket12 = body.newObject("PartDesign::Pocket", "Pocket011")
pocket12.Profile = sketch13
pocket12.Length = 40

# Sketch on YZ plane
sketch14 = body.newObject("Sketcher::SketchObject", "Sketch013")
sketch14.AttachmentSupport = (doc.getObject("YZ_Plane"), [""])
sketch14.MapMode = "FlatFace"
sketch14.AttachmentOffset = App.Placement(Vector(0, 0, -10), App.Rotation())
sketch14.addGeometry(Part.Circle(Vector(0, 82, 0), Vector(0, 0, 1), 10), False)
sketch14.addGeometry(Part.Circle(Vector(0, 264, 0), Vector(0, 0, 1), 10), False)
sketch14.addGeometry(Part.Circle(Vector(0, 339, 0), Vector(0, 0, 1), 10), False)
sketch14.addGeometry(Part.Circle(Vector(0, 522, 0), Vector(0, 0, 1), 10), False)
sketch14.addConstraint(Sketcher.Constraint("Equal", 0, 1))
sketch14.addConstraint(Sketcher.Constraint("Equal", 1, 2))
sketch14.addConstraint(Sketcher.Constraint("Equal", 2, 3))
sketch14.addConstraint(Sketcher.Constraint("PointOnObject", 0, 3, -2))
sketch14.addConstraint(Sketcher.Constraint("PointOnObject", 1, 3, -2))
sketch14.addConstraint(Sketcher.Constraint("PointOnObject", 2, 3, -2))
sketch14.addConstraint(Sketcher.Constraint("PointOnObject", 3, 3, -2))
sketch14.addConstraint(Sketcher.Constraint("Diameter", 0, Q("20 mm")))
sketch14.addConstraint(Sketcher.Constraint("DistanceY", 1, 3, 2, 3, Q("75 mm")))
sketch14.addConstraint(Sketcher.Constraint("DistanceY", 0, 3, 3, 3, Q("440 mm")))
sketch14.addConstraint(Sketcher.Constraint("DistanceY", 0, 3, 1, 3, Q("182.5 mm")))
sketch14.addConstraint(Sketcher.Constraint("DistanceY", -1, 1, 0, 3, Q("81.88 mm")))
pocket13 = body.newObject("PartDesign::Pocket", "Pocket012")
pocket13.Profile = sketch14
pocket13.Length = 40
pocket13.Reversed = True

doc.recompute()
